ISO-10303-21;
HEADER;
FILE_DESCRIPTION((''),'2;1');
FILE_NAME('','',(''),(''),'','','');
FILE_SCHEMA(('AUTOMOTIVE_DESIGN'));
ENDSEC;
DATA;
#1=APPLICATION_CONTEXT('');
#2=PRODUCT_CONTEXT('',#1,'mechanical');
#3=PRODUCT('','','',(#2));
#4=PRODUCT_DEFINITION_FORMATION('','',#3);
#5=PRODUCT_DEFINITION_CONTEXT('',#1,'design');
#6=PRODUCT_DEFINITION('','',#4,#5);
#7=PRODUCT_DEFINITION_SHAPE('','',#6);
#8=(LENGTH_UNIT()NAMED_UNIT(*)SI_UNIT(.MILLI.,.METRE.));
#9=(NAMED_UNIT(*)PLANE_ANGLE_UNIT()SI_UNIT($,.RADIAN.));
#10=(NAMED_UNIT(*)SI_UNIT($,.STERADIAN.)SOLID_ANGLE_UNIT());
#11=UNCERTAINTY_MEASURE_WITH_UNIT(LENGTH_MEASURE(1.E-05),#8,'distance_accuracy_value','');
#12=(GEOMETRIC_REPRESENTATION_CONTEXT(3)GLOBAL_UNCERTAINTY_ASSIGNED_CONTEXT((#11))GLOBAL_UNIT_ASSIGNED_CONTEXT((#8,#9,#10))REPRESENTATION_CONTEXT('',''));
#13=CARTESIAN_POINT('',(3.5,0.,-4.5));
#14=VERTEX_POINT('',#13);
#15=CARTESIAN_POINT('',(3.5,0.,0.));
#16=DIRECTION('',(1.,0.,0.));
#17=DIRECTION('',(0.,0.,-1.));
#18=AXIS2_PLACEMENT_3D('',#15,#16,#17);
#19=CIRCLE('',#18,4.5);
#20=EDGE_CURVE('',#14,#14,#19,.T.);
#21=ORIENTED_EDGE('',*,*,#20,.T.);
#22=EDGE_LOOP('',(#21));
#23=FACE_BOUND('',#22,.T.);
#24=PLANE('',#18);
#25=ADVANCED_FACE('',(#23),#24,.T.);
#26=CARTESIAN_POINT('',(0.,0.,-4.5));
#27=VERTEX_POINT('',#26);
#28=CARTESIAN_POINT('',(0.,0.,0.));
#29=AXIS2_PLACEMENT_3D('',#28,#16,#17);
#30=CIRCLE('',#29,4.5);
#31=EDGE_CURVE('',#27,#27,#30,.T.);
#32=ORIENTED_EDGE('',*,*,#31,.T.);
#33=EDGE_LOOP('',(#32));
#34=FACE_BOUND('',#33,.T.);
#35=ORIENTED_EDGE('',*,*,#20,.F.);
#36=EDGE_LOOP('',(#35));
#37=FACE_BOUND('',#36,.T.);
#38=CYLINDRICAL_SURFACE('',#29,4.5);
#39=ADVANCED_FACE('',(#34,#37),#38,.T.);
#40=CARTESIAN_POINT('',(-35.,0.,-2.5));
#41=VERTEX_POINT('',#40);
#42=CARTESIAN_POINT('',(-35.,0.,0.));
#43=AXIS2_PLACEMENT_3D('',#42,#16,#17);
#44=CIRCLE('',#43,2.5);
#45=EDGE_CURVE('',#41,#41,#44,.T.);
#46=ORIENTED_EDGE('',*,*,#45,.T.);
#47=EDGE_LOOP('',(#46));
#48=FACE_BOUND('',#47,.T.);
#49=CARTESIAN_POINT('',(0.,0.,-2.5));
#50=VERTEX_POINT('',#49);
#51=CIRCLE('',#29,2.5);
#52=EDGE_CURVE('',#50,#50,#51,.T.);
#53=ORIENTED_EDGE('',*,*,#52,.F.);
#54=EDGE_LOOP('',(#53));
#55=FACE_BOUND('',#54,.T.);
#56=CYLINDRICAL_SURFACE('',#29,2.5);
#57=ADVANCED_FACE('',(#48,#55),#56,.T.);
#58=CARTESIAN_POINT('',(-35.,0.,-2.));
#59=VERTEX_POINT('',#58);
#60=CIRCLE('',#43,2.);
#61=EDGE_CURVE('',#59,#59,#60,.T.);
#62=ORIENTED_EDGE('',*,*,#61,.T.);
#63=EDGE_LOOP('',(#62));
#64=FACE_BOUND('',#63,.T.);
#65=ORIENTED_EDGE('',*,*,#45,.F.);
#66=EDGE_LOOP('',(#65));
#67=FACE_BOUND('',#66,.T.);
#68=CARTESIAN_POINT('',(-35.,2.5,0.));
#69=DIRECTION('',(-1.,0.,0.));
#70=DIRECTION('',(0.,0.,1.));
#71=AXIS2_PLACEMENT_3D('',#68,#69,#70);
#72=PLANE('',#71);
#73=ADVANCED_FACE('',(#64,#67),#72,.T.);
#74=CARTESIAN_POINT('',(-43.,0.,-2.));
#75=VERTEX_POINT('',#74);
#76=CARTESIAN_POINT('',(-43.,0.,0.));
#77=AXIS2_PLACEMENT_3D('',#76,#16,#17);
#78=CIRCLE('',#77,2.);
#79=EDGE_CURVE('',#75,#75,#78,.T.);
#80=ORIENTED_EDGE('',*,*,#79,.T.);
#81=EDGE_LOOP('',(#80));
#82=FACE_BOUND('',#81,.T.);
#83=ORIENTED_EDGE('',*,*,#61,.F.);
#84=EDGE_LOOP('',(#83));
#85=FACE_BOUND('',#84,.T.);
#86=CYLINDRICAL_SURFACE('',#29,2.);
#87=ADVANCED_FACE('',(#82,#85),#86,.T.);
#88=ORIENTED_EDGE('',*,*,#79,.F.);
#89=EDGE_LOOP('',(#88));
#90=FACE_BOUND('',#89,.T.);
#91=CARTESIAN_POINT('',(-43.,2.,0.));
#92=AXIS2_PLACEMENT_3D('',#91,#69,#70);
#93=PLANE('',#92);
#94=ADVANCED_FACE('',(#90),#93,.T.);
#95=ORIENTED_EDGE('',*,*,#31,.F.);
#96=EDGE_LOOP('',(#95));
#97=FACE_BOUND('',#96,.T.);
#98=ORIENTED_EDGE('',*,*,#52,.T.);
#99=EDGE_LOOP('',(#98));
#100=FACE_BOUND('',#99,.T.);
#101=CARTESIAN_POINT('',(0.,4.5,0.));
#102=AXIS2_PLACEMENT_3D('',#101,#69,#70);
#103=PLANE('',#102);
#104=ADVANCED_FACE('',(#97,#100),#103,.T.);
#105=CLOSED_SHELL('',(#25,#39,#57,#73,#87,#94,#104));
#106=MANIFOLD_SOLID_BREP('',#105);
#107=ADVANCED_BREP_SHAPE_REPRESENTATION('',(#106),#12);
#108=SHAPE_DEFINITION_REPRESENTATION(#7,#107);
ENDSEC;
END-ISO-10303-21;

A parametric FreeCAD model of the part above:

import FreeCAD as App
import Part
import Sketcher

V = App.Vector

doc = App.newDocument("Part")
body = doc.addObject("PartDesign::Body", "Body")

# Sketch on XY plane
sketch1 = body.newObject("Sketcher::SketchObject", "Sketch")
sketch1.AttachmentSupport = (doc.getObject("XY_Plane"), [""])
sketch1.MapMode = "FlatFace"
sketch1.addGeometry([
    Part.LineSegment(V(3.5, 0, 0), V(3.5, 4.5, 0)),  # 0
    Part.LineSegment(V(3.5, 4.5, 0), V(0, 4.5, 0)),  # 1
    Part.LineSegment(V(0, 4.5, 0), V(0, 2.5, 0)),  # 2
    Part.LineSegment(V(0, 2.5, 0), V(-35, 2.5, 0)),  # 3
    Part.LineSegment(V(-35, 2.5, 0), V(-35, 2, 0)),  # 4
    Part.LineSegment(V(-35, 2, 0), V(-43, 2, 0)),  # 5
    Part.LineSegment(V(-43, 2, 0), V(-43, 0, 0)),  # 6
    Part.LineSegment(V(-43, 0, 0), V(3.5, 0, 0)),  # 7
], False)
sketch1.addConstraint([
    Sketcher.Constraint("Coincident", 0, 2, 1, 1),
    Sketcher.Constraint("Coincident", 1, 2, 2, 1),
    Sketcher.Constraint("Coincident", 2, 2, 3, 1),
    Sketcher.Constraint("Coincident", 3, 2, 4, 1),
    Sketcher.Constraint("Coincident", 4, 2, 5, 1),
    Sketcher.Constraint("Coincident", 5, 2, 6, 1),
    Sketcher.Constraint("Coincident", 6, 2, 7, 1),
    Sketcher.Constraint("Coincident", 7, 2, 0, 1),
    Sketcher.Constraint("Vertical", 0),
    Sketcher.Constraint("Horizontal", 1),
    Sketcher.Constraint("Vertical", 2),
    Sketcher.Constraint("Horizontal", 3),
    Sketcher.Constraint("Vertical", 4),
    Sketcher.Constraint("Horizontal", 5),
    Sketcher.Constraint("Vertical", 6),
    Sketcher.Constraint("Horizontal", 7),
    Sketcher.Constraint("PointOnObject", 1, 2, -2),
    Sketcher.Constraint("PointOnObject", 6, 2, -1),
    Sketcher.Constraint("Equal", 2, 6),
    Sketcher.Constraint("DistanceX", 3, 2, 3, 1, 35.0),
    Sketcher.Constraint("DistanceX", 5, 2, 5, 1, 8.0),
    Sketcher.Constraint("DistanceY", 2, 2, 2, 1, 2.0),
    Sketcher.Constraint("DistanceX", 1, 2, 1, 1, 3.5),
    Sketcher.Constraint("DistanceY", 0, 1, 0, 2, 4.5),
])
revolution = body.newObject("PartDesign::Revolution", "Revolution")
revolution.Profile = sketch1
revolution.ReferenceAxis = (sketch1, ["H_Axis"])
revolution.Angle = 360

doc.recompute()
